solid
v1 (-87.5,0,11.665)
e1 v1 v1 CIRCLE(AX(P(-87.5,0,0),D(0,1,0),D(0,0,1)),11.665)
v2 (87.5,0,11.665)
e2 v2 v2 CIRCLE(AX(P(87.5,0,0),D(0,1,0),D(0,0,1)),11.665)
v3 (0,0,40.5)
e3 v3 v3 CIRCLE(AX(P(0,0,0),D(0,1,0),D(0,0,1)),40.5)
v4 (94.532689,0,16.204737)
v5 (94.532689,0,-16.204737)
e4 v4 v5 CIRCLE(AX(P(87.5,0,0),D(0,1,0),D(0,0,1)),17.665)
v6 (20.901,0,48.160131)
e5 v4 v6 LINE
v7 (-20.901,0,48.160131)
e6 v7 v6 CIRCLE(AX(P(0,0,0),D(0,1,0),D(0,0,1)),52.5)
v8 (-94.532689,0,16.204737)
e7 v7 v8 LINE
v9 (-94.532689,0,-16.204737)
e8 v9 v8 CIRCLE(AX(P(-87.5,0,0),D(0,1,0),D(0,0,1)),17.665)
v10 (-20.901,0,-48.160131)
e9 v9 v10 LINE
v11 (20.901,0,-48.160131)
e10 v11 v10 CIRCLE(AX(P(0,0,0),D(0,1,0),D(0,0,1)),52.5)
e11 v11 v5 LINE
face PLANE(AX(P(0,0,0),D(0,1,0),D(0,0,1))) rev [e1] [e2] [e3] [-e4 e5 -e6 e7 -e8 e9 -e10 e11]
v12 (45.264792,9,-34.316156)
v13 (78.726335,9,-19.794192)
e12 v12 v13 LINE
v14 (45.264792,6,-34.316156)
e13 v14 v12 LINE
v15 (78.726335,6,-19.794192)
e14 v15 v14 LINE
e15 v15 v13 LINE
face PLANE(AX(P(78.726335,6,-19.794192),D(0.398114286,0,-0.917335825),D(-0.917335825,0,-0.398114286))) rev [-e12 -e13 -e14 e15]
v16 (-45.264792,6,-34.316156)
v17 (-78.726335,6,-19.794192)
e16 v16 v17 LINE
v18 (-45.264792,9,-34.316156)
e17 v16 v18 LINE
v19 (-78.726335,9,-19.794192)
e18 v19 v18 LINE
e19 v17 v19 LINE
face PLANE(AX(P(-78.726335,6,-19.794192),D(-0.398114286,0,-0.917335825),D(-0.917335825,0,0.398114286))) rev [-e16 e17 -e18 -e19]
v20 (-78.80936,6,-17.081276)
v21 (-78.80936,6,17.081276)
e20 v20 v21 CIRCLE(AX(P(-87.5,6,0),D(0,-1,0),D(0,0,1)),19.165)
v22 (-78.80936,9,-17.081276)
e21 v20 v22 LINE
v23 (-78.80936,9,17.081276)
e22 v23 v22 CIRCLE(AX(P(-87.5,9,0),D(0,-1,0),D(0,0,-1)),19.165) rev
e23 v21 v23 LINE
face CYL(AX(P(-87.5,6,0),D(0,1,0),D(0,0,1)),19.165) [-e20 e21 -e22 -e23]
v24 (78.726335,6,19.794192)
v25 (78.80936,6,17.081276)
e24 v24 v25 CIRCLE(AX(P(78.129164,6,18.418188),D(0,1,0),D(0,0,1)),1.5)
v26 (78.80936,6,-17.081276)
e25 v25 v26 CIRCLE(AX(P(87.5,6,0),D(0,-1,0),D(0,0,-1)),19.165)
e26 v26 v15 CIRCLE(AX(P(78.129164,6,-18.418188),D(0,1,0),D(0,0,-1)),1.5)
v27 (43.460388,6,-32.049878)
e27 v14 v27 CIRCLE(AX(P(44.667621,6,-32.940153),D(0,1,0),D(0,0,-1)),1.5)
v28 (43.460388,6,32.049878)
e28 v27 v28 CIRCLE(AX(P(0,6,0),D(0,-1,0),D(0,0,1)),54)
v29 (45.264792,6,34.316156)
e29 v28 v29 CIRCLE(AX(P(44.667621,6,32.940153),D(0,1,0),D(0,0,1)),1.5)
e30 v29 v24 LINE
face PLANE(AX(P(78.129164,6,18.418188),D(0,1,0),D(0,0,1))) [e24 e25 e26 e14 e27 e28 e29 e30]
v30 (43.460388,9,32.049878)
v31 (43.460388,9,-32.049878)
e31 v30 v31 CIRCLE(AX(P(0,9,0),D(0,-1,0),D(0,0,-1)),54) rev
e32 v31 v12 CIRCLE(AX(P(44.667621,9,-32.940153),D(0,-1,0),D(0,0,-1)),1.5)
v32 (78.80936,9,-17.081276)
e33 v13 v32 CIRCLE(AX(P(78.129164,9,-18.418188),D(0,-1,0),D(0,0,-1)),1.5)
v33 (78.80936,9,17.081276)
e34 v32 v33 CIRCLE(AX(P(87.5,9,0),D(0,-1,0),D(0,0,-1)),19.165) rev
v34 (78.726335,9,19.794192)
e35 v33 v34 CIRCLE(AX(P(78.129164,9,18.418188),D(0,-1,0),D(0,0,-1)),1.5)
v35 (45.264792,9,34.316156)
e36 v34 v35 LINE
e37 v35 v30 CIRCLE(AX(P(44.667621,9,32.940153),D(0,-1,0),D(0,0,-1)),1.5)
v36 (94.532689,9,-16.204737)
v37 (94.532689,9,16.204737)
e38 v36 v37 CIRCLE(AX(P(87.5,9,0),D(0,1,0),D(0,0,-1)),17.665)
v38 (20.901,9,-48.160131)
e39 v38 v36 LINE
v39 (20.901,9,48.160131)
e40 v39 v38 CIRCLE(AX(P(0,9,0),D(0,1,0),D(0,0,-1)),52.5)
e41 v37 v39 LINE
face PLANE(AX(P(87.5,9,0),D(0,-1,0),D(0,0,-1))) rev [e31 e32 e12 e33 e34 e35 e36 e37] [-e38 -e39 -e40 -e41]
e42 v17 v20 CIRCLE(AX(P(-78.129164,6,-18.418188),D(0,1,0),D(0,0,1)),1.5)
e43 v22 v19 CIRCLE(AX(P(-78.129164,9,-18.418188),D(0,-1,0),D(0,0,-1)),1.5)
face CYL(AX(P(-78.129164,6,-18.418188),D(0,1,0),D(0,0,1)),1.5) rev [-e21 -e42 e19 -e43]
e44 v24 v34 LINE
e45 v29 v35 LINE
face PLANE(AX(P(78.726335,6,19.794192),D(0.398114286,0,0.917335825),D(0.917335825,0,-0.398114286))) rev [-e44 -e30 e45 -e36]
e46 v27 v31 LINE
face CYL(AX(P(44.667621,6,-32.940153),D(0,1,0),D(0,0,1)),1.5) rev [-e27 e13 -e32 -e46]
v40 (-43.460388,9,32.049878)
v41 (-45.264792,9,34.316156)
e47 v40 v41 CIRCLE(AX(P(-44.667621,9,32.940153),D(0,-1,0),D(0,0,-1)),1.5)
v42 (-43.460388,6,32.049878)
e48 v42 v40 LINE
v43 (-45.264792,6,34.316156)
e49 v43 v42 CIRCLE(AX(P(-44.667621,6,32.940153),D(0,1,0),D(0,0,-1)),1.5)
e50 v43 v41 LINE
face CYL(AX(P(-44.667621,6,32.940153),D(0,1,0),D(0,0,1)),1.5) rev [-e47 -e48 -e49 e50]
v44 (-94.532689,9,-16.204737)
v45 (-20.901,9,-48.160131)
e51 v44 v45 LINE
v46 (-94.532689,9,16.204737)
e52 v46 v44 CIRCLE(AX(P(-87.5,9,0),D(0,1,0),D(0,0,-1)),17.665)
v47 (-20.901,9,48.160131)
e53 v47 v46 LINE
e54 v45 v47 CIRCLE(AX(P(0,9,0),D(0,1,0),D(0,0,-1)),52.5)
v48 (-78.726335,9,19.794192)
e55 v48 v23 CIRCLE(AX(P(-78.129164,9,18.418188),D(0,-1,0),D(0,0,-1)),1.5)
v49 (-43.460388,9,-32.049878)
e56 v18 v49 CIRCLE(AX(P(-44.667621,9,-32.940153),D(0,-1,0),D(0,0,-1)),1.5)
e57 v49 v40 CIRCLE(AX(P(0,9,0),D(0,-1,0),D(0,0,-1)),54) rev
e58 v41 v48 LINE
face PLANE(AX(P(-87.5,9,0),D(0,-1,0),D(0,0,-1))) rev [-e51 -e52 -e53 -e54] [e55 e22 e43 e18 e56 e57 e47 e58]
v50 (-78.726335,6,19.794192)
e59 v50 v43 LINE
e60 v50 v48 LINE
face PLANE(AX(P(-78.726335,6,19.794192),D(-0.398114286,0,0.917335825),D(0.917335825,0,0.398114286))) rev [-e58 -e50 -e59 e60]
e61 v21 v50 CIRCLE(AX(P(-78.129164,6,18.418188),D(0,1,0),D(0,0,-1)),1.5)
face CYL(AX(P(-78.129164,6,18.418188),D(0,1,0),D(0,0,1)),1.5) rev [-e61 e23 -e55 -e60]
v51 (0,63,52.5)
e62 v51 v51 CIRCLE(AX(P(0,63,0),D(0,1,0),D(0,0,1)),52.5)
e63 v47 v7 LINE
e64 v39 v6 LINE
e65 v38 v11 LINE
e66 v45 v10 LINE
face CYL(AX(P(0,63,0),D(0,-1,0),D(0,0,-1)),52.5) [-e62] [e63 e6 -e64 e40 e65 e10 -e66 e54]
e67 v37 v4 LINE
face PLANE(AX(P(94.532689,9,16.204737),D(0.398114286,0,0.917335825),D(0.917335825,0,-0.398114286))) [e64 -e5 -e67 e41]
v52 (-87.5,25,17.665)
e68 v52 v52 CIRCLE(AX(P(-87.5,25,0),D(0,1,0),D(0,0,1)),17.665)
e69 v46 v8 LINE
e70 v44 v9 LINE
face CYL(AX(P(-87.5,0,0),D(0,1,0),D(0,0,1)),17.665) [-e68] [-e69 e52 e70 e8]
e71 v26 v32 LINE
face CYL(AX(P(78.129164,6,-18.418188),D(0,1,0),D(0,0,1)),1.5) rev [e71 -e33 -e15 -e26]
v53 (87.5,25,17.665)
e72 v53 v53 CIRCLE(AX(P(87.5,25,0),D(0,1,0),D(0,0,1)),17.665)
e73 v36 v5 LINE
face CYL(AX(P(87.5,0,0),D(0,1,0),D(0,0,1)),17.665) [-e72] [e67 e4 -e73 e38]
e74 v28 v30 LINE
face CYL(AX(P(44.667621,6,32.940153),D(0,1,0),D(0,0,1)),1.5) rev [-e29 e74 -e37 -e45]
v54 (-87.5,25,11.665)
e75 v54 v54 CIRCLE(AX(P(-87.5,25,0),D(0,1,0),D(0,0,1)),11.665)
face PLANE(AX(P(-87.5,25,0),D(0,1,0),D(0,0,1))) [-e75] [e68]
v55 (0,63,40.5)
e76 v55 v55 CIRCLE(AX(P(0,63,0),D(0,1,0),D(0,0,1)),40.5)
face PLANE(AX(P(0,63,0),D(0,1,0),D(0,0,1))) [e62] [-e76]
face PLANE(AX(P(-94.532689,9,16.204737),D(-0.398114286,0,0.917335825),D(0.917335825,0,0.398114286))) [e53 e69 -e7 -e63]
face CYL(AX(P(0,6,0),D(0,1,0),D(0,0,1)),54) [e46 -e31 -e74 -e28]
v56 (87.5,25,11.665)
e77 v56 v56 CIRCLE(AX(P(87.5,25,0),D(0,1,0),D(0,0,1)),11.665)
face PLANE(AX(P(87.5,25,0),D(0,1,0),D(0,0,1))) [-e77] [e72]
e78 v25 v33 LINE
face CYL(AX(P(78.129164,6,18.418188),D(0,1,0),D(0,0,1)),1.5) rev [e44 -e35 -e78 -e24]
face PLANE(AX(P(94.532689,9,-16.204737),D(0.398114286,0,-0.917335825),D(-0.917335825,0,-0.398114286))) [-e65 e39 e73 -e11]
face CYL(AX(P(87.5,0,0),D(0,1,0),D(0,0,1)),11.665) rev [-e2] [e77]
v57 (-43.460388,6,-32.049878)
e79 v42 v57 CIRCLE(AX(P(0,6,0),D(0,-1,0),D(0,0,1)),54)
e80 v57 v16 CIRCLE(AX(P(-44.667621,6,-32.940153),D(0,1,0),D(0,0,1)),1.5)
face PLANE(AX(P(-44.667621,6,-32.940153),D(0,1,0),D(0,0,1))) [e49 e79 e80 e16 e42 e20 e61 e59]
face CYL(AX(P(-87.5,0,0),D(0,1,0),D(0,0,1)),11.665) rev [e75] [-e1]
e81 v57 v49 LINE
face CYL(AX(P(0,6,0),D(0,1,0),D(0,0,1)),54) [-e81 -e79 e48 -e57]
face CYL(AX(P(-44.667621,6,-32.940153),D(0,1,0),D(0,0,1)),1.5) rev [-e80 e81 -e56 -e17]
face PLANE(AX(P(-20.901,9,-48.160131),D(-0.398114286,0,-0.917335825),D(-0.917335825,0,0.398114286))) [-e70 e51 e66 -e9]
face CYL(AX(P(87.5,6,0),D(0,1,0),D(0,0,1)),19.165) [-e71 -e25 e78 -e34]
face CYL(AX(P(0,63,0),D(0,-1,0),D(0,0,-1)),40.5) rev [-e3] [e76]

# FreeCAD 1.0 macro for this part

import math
import FreeCAD as App
import Part
import Sketcher
Q = App.Units.Quantity

doc = App.newDocument("Part")
body = doc.addObject("PartDesign::Body", "Body")

sketch1 = body.newObject("Sketcher::SketchObject", "Sketch")
sketch1.AttachmentSupport = (doc.getObject("XZ_Plane"), [""])
sketch1.MapMode = "FlatFace"
sketch1.addGeometry([
    Part.Circle(App.Vector(0, 0, 0), App.Vector(0, 0, 1), 52.5),
    Part.Circle(App.Vector(0, 0, 0), App.Vector(0, 0, 1), 40.5),
], False)
sketch1.addConstraint([
    Sketcher.Constraint("Coincident", 0, 3, -1, 1),
    Sketcher.Constraint("Coincident", 1, 3, -1, 1),
    Sketcher.Constraint("Diameter", 0, Q("105 mm")),
    Sketcher.Constraint("Diameter", 1, Q("81 mm")),
])
pad1 = body.newObject("PartDesign::Pad", "Pad")
pad1.Profile = sketch1
pad1.Length = 63
pad1.Reversed = True
body2 = doc.addObject("PartDesign::Body", "Body001")

sketch2 = body2.newObject("Sketcher::SketchObject", "Sketch001")
sketch2.AttachmentSupport = (doc.getObject("XZ_Plane001"), [""])
sketch2.MapMode = "FlatFace"
sketch2.AttachmentOffset = App.Placement(App.Vector(0, 0, -25), App.Rotation())
sketch2.addGeometry([
    Part.Circle(App.Vector(87.5, 0, 0), App.Vector(0, 0, 1), 17.665),
    Part.Circle(App.Vector(87.5, 0, 0), App.Vector(0, 0, 1), 11.665),
], False)
sketch2.addConstraint([
    Sketcher.Constraint("Coincident", 1, 3, 0, 3),
    Sketcher.Constraint("PointOnObject", 0, 3, -1),
    Sketcher.Constraint("Diameter", 0, Q("35.33 mm")),
    Sketcher.Constraint("Diameter", 1, Q("23.33 mm")),
    Sketcher.Constraint("DistanceX", -1, 1, 0, 3, Q("87.5 mm")),
])
pad2 = body2.newObject("PartDesign::Pad", "Pad001")
pad2.Profile = sketch2
pad2.Length = 25
body3 = doc.addObject("PartDesign::Body", "Body002")

sketch3 = body3.newObject("Sketcher::SketchObject", "Sketch002")
sketch3.AttachmentSupport = (doc.getObject("XZ_Plane002"), [""])
sketch3.MapMode = "FlatFace"
sketch3.AttachmentOffset = App.Placement(App.Vector(0, 0, -25), App.Rotation())
sketch3.addGeometry([
    Part.Circle(App.Vector(-87.5, 0, 0), App.Vector(0, 0, 1), 17.665),
    Part.Circle(App.Vector(-87.5, 0, 0), App.Vector(0, 0, 1), 11.665),
], False)
sketch3.addConstraint([
    Sketcher.Constraint("Coincident", 1, 3, 0, 3),
    Sketcher.Constraint("PointOnObject", 0, 3, -1),
    Sketcher.Constraint("Diameter", 0, Q("35.33 mm")),
    Sketcher.Constraint("Diameter", 1, Q("23.33 mm")),
    Sketcher.Constraint("DistanceX", 0, 3, -1, 1, Q("87.5 mm")),
])
pad3 = body3.newObject("PartDesign::Pad", "Pad002")
pad3.Profile = sketch3
pad3.Length = 25
body.AllowCompound = True
doc.recompute()

boolean = body.newObject("PartDesign::Boolean", "Boolean")
boolean.Type = "Fuse"
boolean.addObjects([body2])
doc.recompute()

boolean2 = body.newObject("PartDesign::Boolean", "Boolean001")
boolean2.Type = "Fuse"
boolean2.addObjects([body3])

sketch4 = body.newObject("Sketcher::SketchObject", "Sketch003")
sketch4.AttachmentSupport = (doc.getObject("XZ_Plane"), [""])
sketch4.MapMode = "FlatFace"
sketch4.addGeometry([
    Part.LineSegment(App.Vector(20.901, -48.160131, 0), App.Vector(94.532689, -16.204737, 0)),
    Part.ArcOfCircle(Part.Circle(App.Vector(87.5, 0, 0), App.Vector(0, 0, 1), 17.665), math.radians(66.539654), math.radians(293.460346)),
    Part.LineSegment(App.Vector(94.532689, 16.204737, 0), App.Vector(20.901, 48.160131, 0)),
    Part.ArcOfCircle(Part.Circle(App.Vector(0, 0, 0), App.Vector(0, 0, 1), 52.5), math.radians(-66.539654), math.radians(66.539654)),
    Part.LineSegment(App.Vector(-94.532689, -16.204737, 0), App.Vector(-20.901, -48.160131, 0)),
    Part.ArcOfCircle(Part.Circle(App.Vector(0, 0, 0), App.Vector(0, 0, 1), 52.5), math.radians(113.460346), math.radians(246.539654)),
    Part.LineSegment(App.Vector(-20.901, 48.160131, 0), App.Vector(-94.532689, 16.204737, 0)),
    Part.ArcOfCircle(Part.Circle(App.Vector(-87.5, 0, 0), App.Vector(0, 0, 1), 17.665), math.radians(-113.460346), math.radians(113.460346)),
], False)
sketch4.addConstraint([
    Sketcher.Constraint("Tangent", 0, 2, 1, 2),
    Sketcher.Constraint("Tangent", 1, 1, 2, 1),
    Sketcher.Constraint("Tangent", 2, 2, 3, 2),
    Sketcher.Constraint("Tangent", 3, 1, 0, 1),
    Sketcher.Constraint("Tangent", 4, 2, 5, 2),
    Sketcher.Constraint("Tangent", 5, 1, 6, 1),
    Sketcher.Constraint("Tangent", 6, 2, 7, 2),
    Sketcher.Constraint("Tangent", 7, 1, 4, 1),
    Sketcher.Constraint("Coincident", 3, 3, -1, 1),
    Sketcher.Constraint("Coincident", 5, 3, -1, 1),
    Sketcher.Constraint("Equal", 3, 5),
    Sketcher.Constraint("Equal", 1, 7),
    Sketcher.Constraint("Symmetric", 1, 3, 7, 3, -1, 1),
    Sketcher.Constraint("PointOnObject", 1, 3, -1),
    Sketcher.Constraint("Radius", 3, Q("52.5 mm")),
    Sketcher.Constraint("Radius", 1, Q("17.665 mm")),
    Sketcher.Constraint("DistanceX", 7, 3, 1, 3, Q("175 mm")),
])
pad4 = body.newObject("PartDesign::Pad", "Pad003")
pad4.Profile = sketch4
pad4.Length = 9
pad4.Reversed = True

sketch5 = body.newObject("Sketcher::SketchObject", "Sketch004")
sketch5.AttachmentSupport = (doc.getObject("XZ_Plane"), [""])
sketch5.MapMode = "FlatFace"
sketch5.AttachmentOffset = App.Placement(App.Vector(0, 0, -63), App.Rotation())
sketch5.addGeometry([
    Part.LineSegment(App.Vector(-45.264792, -34.316156, 0), App.Vector(-78.726335, -19.794192, 0)),
    Part.ArcOfCircle(Part.Circle(App.Vector(-78.129164, -18.418188, 0), App.Vector(0, 0, 1), 1.5), math.radians(116.966157), math.radians(246.539654)),
    Part.ArcOfCircle(Part.Circle(App.Vector(-87.5, 0, 0), App.Vector(0, 0, 1), 19.165), math.radians(-63.033843), math.radians(63.033843)),
    Part.ArcOfCircle(Part.Circle(App.Vector(-78.129164, 18.418188, 0), App.Vector(0, 0, 1), 1.5), math.radians(113.460346), math.radians(243.033843)),
    Part.LineSegment(App.Vector(-78.726335, 19.794192, 0), App.Vector(-45.264792, 34.316156, 0)),
    Part.ArcOfCircle(Part.Circle(App.Vector(-44.667621, 32.940153, 0), App.Vector(0, 0, 1), 1.5), math.radians(-36.406932), math.radians(113.460346)),
    Part.ArcOfCircle(Part.Circle(App.Vector(0, 0, 0), App.Vector(0, 0, 1), 54), math.radians(143.593068), math.radians(216.406932)),
    Part.ArcOfCircle(Part.Circle(App.Vector(-44.667621, -32.940153, 0), App.Vector(0, 0, 1), 1.5), math.radians(-113.460346), math.radians(36.406932)),
    Part.LineSegment(App.Vector(45.264792, 34.316156, 0), App.Vector(78.726335, 19.794192, 0)),
    Part.ArcOfCircle(Part.Circle(App.Vector(78.129164, 18.418188, 0), App.Vector(0, 0, 1), 1.5), math.radians(-63.033843), math.radians(66.539654)),
    Part.ArcOfCircle(Part.Circle(App.Vector(87.5, 0, 0), App.Vector(0, 0, 1), 19.165), math.radians(116.966157), math.radians(243.033843)),
    Part.ArcOfCircle(Part.Circle(App.Vector(78.129164, -18.418188, 0), App.Vector(0, 0, 1), 1.5), math.radians(-66.539654), math.radians(63.033843)),
    Part.LineSegment(App.Vector(78.726335, -19.794192, 0), App.Vector(45.264792, -34.316156, 0)),
    Part.ArcOfCircle(Part.Circle(App.Vector(44.667621, -32.940153, 0), App.Vector(0, 0, 1), 1.5), math.radians(143.593068), math.radians(293.460346)),
    Part.ArcOfCircle(Part.Circle(App.Vector(0, 0, 0), App.Vector(0, 0, 1), 54), math.radians(-36.406932), math.radians(36.406932)),
    Part.ArcOfCircle(Part.Circle(App.Vector(44.667621, 32.940153, 0), App.Vector(0, 0, 1), 1.5), math.radians(66.539654), math.radians(216.406932)),
], False)
sketch5.addConstraint([
    Sketcher.Constraint("Tangent", 0, 2, 1, 2),
    Sketcher.Constraint("Tangent", 1, 1, 2, 1),
    Sketcher.Constraint("Tangent", 2, 2, 3, 2),
    Sketcher.Constraint("Tangent", 3, 1, 4, 1),
    Sketcher.Constraint("Tangent", 4, 2, 5, 2),
    Sketcher.Constraint("Tangent", 5, 1, 6, 1),
    Sketcher.Constraint("Tangent", 6, 2, 7, 2),
    Sketcher.Constraint("Tangent", 7, 1, 0, 1),
    Sketcher.Constraint("Tangent", 8, 2, 9, 2),
    Sketcher.Constraint("Tangent", 9, 1, 10, 1),
    Sketcher.Constraint("Tangent", 10, 2, 11, 2),
    Sketcher.Constraint("Tangent", 11, 1, 12, 1),
    Sketcher.Constraint("Tangent", 12, 2, 13, 2),
    Sketcher.Constraint("Tangent", 13, 1, 14, 1),
    Sketcher.Constraint("Tangent", 14, 2, 15, 2),
    Sketcher.Constraint("Tangent", 15, 1, 8, 1),
    Sketcher.Constraint("Coincident", 6, 3, -1, 1),
    Sketcher.Constraint("Coincident", 14, 3, -1, 1),
    Sketcher.Constraint("Equal", 1, 3),
    Sketcher.Constraint("Equal", 3, 5),
    Sketcher.Constraint("Equal", 5, 7),
    Sketcher.Constraint("Equal", 7, 9),
    Sketcher.Constraint("Equal", 2, 10),
    Sketcher.Constraint("Equal", 9, 11),
    Sketcher.Constraint("Equal", 11, 13),
    Sketcher.Constraint("Equal", 6, 14),
    Sketcher.Constraint("Equal", 13, 15),
    Sketcher.Constraint("Symmetric", 1, 3, 9, 3, -1, 1),
    Sketcher.Constraint("Symmetric", 3, 3, 11, 3, -1, 1),
    Sketcher.Constraint("Symmetric", 3, 3, 9, 3, -2),
    Sketcher.Constraint("Parallel", 0, 8),
    Sketcher.Constraint("Parallel", 4, 12),
    Sketcher.Constraint("Horizontal", 7, 3, 13, 3),
    Sketcher.Constraint("Radius", 6, Q("54 mm")),
    Sketcher.Constraint("Radius", 1, Q("1.5 mm")),
    Sketcher.Constraint("Radius", 2, Q("19.165 mm")),
    Sketcher.Constraint("DistanceX", 2, 3, -1, 1, Q("87.5 mm")),
    Sketcher.Constraint("DistanceY", 2, 2, 5, 1, Q("14.968602 mm")),
    Sketcher.Constraint("DistanceY", 1, 3, -1, 1, Q("18.418188 mm")),
])
pocket1 = body.newObject("PartDesign::Pocket", "Pocket")
pocket1.Profile = sketch5
pocket1.Length = 57
pocket1.Reversed = True

doc.recompute()
